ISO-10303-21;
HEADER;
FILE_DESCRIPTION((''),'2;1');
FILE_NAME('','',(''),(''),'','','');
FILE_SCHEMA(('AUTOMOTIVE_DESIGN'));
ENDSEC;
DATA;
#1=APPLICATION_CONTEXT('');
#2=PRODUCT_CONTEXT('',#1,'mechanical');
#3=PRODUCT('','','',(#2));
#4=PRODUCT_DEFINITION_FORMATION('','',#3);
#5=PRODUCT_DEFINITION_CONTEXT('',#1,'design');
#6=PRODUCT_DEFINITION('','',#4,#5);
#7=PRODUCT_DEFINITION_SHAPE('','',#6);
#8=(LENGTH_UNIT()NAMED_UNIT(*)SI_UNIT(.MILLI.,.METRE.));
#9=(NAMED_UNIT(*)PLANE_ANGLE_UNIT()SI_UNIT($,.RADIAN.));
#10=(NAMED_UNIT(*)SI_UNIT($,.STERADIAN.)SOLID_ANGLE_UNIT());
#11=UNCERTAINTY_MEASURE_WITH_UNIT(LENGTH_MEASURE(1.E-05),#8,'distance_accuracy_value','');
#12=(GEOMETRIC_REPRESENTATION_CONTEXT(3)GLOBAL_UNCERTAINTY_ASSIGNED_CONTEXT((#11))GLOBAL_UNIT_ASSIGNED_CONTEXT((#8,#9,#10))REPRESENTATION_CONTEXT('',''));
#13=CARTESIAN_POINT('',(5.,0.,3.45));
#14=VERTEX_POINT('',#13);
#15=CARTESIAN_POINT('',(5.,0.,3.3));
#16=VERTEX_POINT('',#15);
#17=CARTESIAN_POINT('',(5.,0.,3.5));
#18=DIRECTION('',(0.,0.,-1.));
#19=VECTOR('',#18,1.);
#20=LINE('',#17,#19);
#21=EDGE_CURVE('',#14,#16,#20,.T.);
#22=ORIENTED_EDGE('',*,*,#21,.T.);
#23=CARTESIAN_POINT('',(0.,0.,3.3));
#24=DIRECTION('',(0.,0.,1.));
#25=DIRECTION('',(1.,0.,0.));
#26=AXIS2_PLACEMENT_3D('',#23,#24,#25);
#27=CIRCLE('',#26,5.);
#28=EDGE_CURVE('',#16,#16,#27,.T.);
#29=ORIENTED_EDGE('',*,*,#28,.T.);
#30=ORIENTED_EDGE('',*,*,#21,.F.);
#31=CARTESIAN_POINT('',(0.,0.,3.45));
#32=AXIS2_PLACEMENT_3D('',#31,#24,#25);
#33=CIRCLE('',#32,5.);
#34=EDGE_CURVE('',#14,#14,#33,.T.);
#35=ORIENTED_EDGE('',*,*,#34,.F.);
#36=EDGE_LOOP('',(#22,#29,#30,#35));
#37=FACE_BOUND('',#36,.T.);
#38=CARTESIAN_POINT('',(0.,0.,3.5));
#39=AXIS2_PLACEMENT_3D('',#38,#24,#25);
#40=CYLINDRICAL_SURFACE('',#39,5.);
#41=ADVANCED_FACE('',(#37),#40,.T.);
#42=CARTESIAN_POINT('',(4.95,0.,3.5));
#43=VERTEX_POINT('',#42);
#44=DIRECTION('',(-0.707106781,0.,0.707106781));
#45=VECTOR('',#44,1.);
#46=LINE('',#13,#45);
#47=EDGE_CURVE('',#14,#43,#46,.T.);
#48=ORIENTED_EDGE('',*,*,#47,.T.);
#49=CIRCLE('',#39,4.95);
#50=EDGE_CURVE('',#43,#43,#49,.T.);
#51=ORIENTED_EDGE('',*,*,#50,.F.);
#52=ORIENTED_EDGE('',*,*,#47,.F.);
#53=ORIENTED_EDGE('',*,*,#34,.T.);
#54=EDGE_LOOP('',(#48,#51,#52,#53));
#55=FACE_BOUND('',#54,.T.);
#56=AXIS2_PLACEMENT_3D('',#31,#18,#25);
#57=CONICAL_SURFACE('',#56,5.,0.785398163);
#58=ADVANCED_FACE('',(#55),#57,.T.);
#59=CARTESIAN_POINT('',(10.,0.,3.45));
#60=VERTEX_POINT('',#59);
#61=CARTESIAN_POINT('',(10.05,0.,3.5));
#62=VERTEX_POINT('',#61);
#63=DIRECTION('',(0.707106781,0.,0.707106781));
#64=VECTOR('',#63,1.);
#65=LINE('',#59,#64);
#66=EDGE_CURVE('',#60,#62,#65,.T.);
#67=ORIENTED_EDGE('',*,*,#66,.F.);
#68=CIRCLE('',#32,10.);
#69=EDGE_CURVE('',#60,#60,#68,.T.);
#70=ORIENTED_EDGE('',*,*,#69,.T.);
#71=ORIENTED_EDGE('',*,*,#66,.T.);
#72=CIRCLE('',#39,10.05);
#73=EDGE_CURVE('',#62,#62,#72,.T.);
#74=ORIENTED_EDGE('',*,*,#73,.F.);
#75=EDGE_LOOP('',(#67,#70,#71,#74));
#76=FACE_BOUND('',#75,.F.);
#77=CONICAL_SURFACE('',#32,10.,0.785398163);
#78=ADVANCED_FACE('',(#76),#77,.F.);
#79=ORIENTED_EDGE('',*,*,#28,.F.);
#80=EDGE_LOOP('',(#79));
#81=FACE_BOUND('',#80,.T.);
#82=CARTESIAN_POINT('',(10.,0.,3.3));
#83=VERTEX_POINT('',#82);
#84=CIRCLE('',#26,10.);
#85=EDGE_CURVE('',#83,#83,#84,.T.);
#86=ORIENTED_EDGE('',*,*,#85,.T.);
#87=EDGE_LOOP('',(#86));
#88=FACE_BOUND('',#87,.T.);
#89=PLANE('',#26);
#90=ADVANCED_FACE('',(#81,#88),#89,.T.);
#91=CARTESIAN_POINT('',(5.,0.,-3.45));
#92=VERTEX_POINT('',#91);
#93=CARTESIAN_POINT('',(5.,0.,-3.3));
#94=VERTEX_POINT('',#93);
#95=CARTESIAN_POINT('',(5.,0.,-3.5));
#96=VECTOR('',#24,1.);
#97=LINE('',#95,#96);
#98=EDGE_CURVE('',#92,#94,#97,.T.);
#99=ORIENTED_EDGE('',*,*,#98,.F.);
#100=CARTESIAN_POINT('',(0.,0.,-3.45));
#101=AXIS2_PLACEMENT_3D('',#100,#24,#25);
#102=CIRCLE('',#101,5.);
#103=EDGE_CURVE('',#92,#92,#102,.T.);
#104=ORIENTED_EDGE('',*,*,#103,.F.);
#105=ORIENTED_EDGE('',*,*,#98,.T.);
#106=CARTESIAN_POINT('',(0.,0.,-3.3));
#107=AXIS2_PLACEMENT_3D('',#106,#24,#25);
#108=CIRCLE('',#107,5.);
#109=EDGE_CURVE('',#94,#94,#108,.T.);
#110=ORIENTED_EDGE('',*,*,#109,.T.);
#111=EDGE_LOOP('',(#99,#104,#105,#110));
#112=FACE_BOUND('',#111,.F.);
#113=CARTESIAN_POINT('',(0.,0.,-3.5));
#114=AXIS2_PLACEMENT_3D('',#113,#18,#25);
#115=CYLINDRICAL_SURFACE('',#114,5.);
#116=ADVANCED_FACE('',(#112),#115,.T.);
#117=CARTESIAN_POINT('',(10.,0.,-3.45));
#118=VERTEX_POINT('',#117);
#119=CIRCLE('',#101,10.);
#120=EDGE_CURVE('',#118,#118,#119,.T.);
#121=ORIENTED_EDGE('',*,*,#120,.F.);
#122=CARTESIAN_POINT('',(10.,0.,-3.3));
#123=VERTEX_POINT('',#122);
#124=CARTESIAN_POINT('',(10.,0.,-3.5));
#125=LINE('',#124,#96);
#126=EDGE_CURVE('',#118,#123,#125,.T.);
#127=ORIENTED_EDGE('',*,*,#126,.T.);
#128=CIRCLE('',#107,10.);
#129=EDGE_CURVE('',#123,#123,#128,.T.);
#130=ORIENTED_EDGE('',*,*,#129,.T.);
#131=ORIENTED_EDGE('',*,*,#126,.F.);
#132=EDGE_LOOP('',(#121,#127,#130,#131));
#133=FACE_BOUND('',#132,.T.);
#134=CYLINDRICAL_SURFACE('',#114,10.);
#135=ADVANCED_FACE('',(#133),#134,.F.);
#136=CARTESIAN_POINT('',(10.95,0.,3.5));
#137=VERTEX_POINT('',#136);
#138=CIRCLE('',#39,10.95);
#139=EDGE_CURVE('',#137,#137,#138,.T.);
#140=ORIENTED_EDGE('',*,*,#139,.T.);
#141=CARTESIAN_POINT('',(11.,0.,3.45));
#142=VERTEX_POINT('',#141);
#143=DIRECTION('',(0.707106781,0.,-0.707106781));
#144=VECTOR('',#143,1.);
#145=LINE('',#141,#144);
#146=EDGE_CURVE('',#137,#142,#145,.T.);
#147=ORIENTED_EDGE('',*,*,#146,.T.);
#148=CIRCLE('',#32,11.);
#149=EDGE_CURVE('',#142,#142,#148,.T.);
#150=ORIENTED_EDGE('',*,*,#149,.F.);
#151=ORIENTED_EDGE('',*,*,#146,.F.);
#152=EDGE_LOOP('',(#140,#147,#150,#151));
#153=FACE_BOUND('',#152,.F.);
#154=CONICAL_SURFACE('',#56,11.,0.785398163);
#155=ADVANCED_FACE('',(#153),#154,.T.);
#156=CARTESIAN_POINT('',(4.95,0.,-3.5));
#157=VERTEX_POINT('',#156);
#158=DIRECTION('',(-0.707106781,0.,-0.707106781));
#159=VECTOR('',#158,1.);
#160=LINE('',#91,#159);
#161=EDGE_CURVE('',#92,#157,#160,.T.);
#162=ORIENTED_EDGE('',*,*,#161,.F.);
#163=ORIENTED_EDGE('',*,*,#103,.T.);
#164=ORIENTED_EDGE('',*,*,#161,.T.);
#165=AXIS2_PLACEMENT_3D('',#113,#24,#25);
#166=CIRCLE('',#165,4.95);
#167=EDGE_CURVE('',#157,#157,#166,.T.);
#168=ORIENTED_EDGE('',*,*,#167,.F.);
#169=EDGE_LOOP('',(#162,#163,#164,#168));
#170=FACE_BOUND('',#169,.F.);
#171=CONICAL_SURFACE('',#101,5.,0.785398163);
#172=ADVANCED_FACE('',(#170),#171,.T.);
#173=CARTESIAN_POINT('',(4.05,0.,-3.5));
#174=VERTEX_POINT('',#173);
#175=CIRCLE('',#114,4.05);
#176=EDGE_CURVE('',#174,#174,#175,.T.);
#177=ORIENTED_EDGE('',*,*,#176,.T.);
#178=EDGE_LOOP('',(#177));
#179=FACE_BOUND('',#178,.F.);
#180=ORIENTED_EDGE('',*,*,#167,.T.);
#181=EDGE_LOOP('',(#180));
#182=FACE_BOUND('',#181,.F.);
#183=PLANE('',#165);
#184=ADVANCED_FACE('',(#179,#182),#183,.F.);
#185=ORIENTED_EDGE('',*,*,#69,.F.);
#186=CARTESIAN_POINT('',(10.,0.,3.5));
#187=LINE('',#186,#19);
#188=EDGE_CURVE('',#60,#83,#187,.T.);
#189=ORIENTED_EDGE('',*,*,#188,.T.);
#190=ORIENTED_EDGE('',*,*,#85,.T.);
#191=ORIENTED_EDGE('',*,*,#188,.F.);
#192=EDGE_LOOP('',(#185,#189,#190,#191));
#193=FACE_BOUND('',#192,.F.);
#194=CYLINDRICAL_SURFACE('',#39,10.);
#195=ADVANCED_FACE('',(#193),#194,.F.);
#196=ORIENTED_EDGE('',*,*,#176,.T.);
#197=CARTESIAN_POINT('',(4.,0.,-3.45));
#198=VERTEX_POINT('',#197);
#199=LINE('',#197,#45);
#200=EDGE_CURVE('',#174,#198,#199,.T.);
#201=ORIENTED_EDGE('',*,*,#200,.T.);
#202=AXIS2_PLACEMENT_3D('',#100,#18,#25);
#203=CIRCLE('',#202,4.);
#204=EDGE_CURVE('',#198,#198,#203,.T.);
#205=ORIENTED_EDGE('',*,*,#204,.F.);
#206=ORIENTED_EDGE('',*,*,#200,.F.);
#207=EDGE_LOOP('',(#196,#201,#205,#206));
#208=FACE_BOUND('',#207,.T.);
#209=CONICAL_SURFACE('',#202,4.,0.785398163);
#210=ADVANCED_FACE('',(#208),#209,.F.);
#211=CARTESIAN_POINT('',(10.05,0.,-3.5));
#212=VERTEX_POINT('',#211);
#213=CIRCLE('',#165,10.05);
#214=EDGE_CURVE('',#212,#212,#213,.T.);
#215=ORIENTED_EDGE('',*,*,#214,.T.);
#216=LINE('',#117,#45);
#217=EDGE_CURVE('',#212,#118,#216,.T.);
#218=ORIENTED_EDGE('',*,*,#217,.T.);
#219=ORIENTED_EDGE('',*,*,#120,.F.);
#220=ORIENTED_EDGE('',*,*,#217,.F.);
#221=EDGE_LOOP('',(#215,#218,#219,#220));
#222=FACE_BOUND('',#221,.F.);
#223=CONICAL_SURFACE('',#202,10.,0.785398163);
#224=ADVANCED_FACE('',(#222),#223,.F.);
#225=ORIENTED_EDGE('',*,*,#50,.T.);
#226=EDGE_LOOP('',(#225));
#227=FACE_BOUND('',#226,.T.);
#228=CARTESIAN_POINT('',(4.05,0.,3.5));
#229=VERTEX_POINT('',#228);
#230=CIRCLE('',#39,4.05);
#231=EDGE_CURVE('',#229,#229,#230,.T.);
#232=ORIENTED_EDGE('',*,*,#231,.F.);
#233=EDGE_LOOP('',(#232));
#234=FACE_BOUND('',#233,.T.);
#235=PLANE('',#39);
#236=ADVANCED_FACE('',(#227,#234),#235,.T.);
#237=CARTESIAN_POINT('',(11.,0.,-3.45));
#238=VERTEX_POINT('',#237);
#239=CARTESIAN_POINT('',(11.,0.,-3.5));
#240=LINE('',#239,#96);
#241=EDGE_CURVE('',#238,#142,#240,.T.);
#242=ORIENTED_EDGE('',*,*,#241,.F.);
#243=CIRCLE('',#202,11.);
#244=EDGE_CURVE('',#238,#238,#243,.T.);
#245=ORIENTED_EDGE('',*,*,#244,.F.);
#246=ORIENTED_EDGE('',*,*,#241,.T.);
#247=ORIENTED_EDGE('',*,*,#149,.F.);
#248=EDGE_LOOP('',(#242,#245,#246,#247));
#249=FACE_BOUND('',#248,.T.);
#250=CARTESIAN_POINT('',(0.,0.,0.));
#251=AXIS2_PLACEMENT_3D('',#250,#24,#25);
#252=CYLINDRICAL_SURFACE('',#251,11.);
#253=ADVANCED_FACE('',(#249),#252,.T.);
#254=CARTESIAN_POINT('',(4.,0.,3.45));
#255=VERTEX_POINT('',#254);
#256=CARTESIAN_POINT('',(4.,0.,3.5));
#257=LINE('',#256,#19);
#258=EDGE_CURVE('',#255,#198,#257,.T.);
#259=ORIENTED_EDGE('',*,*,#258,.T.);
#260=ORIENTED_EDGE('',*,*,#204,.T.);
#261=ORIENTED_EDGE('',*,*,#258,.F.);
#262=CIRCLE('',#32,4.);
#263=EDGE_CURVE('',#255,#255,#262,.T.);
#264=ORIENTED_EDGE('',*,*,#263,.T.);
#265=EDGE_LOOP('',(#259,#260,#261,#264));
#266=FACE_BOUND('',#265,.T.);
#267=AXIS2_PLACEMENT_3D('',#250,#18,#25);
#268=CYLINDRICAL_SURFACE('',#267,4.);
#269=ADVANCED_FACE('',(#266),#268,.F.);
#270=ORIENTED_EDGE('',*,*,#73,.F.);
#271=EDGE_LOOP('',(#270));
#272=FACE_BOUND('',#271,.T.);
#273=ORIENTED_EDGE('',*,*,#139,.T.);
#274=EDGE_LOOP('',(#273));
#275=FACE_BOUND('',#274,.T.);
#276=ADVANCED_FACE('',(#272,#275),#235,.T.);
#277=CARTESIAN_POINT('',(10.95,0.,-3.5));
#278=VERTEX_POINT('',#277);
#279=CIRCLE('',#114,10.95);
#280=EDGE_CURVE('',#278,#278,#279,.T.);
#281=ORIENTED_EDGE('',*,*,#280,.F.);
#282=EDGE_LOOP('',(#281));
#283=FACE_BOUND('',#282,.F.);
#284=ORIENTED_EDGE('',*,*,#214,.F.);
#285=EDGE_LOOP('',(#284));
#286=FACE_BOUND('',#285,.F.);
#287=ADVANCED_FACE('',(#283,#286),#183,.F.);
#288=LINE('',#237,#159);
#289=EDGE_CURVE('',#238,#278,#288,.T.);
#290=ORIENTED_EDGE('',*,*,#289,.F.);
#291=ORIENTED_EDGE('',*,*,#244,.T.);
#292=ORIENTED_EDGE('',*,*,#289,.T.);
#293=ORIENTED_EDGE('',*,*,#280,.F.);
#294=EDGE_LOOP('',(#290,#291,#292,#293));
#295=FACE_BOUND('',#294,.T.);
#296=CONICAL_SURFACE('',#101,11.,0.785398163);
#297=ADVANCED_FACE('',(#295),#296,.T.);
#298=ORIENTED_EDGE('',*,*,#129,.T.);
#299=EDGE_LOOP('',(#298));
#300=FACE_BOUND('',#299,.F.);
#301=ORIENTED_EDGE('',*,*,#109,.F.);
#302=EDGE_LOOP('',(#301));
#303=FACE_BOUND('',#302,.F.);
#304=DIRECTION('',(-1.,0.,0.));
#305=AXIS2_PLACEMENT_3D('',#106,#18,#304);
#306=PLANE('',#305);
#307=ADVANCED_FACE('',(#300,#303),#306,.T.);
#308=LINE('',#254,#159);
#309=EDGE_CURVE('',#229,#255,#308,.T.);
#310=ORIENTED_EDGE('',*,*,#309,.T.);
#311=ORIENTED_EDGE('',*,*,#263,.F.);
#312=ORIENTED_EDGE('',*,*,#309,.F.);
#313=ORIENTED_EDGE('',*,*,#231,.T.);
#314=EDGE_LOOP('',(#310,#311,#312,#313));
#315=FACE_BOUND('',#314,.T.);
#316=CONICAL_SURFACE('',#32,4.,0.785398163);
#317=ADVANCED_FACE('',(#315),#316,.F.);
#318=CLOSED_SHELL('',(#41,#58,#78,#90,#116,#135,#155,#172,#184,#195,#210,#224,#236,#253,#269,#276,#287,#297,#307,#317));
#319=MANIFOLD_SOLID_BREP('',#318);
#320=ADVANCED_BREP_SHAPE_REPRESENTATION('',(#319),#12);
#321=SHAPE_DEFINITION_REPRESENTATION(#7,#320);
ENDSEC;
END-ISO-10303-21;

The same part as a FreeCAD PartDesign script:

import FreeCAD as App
import Part
import Sketcher
from FreeCAD import Vector
Q = App.Units.Quantity


def edges_at(feature, points):
    """Names of the edges that pass closest to the given points."""
    edges = feature.Shape.Edges
    near = lambda p: min(range(len(edges)), key=lambda i: edges[i].distToShape(Part.Vertex(*p))[0])
    return sorted({f"Edge{near(p) + 1}" for p in points})

doc = App.newDocument("Part")
params = doc.addObject("Spreadsheet::Sheet", "Params")
for row, (alias, value) in enumerate([
    ("sketch1_diameter", "22 mm"),
    ("sketch1_diameter2", "8 mm"),
    ("pad1_length", "7 mm"),
    ("sketch2_diameter", "20 mm"),
    ("sketch2_diameter2", "10 mm"),
    ("pocket1_length", "0.2 mm"),
    ("chamfer_size", "0.05 mm"),
    ("chamfer2_size", "0.05 mm"),
    ("chamfer3_size", "0.05 mm"),
    ("chamfer4_size", "0.05 mm"),
    ("chamfer5_size", "0.05 mm"),
    ("chamfer6_size", "0.05 mm"),
    ("chamfer7_size", "0.05 mm"),
    ("chamfer8_size", "0.05 mm"),
], start=1):
    params.set(f"A{row}", alias)
    params.set(f"B{row}", "=" + value)
    params.setAlias(f"B{row}", alias)

body = doc.addObject("PartDesign::Body", "Body")

sketch1 = doc.addObject("Sketcher::SketchObject", "Sketch")
body.addObject(sketch1)
sketch1.AttachmentSupport = (doc.XY_Plane, [""])
sketch1.MapMode = "FlatFace"
sketch1.addGeometry([
    Part.Circle(Vector(0, 0, 0), Vector(0, 0, 1), 11),
    Part.Circle(Vector(0, 0, 0), Vector(0, 0, 1), 4),
], False)
sketch1.addConstraint([
    Sketcher.Constraint("Coincident", 0, 3, -1, 1),
    Sketcher.Constraint("Coincident", 1, 3, -1, 1),
    Sketcher.Constraint("Diameter", 0, Q("22 mm")),
    Sketcher.Constraint("Diameter", 1, Q("8 mm")),
])
sketch1.setExpression("Constraints[2]", "Params.sketch1_diameter")
sketch1.setExpression("Constraints[3]", "Params.sketch1_diameter2")
pad1 = doc.addObject("PartDesign::Pad", "Pad")
body.addObject(pad1)
pad1.Profile = sketch1
pad1.setExpression("Length", "Params.pad1_length")
pad1.Midplane = True

sketch2 = doc.addObject("Sketcher::SketchObject", "Sketch001")
body.addObject(sketch2)
sketch2.AttachmentSupport = (doc.XY_Plane, [""])
sketch2.MapMode = "FlatFace"
sketch2.AttachmentOffset = App.Placement(Vector(0, 0, 3.5), App.Rotation())
sketch2.addGeometry([
    Part.Circle(Vector(0, 0, 0), Vector(0, 0, 1), 10),
    Part.Circle(Vector(0, 0, 0), Vector(0, 0, 1), 5),
], False)
sketch2.addConstraint([
    Sketcher.Constraint("Coincident", 0, 3, -1, 1),
    Sketcher.Constraint("Coincident", 1, 3, -1, 1),
    Sketcher.Constraint("Diameter", 0, Q("20 mm")),
    Sketcher.Constraint("Diameter", 1, Q("10 mm")),
])
sketch2.setExpression("Constraints[2]", "Params.sketch2_diameter")
sketch2.setExpression("Constraints[3]", "Params.sketch2_diameter2")
pocket1 = doc.addObject("PartDesign::Pocket", "Pocket")
body.addObject(pocket1)
pocket1.Profile = sketch2
pocket1.setExpression("Length", "Params.pocket1_length")
doc.recompute()

mirrored = doc.addObject("PartDesign::Mirrored", "Mirrored")
body.addObject(mirrored)
mirrored.Originals = [pocket1]
mirrored.MirrorPlane = (doc.XY_Plane, [""])
body.Tip = mirrored
doc.recompute()

chamfer = doc.addObject("PartDesign::Chamfer", "Chamfer")
body.addObject(chamfer)
chamfer.Base = (mirrored, edges_at(mirrored, [(-10, 0, 3.5)]))
chamfer.setExpression("Size", "Params.chamfer_size")
doc.recompute()

chamfer2 = doc.addObject("PartDesign::Chamfer", "Chamfer001")
body.addObject(chamfer2)
chamfer2.Base = (chamfer, edges_at(chamfer, [(-5, 0, 3.5)]))
chamfer2.setExpression("Size", "Params.chamfer2_size")
doc.recompute()

chamfer3 = doc.addObject("PartDesign::Chamfer", "Chamfer002")
body.addObject(chamfer3)
chamfer3.Base = (chamfer2, edges_at(chamfer2, [(-4, 0, 3.5)]))
chamfer3.setExpression("Size", "Params.chamfer3_size")
doc.recompute()

chamfer4 = doc.addObject("PartDesign::Chamfer", "Chamfer003")
body.addObject(chamfer4)
chamfer4.Base = (chamfer3, edges_at(chamfer3, [(-11, 0, 3.5)]))
chamfer4.setExpression("Size", "Params.chamfer4_size")
doc.recompute()

chamfer5 = doc.addObject("PartDesign::Chamfer", "Chamfer004")
body.addObject(chamfer5)
chamfer5.Base = (chamfer4, edges_at(chamfer4, [(-11, 0, -3.5)]))
chamfer5.setExpression("Size", "Params.chamfer5_size")
doc.recompute()

chamfer6 = doc.addObject("PartDesign::Chamfer", "Chamfer005")
body.addObject(chamfer6)
chamfer6.Base = (chamfer5, edges_at(chamfer5, [(-10, 0, -3.5)]))
chamfer6.setExpression("Size", "Params.chamfer6_size")
doc.recompute()

chamfer7 = doc.addObject("PartDesign::Chamfer", "Chamfer006")
body.addObject(chamfer7)
chamfer7.Base = (chamfer6, edges_at(chamfer6, [(-5, 0, -3.5)]))
chamfer7.setExpression("Size", "Params.chamfer7_size")
doc.recompute()

chamfer8 = doc.addObject("PartDesign::Chamfer", "Chamfer007")
body.addObject(chamfer8)
chamfer8.Base = (chamfer7, edges_at(chamfer7, [(-4, 0, -3.5)]))
chamfer8.setExpression("Size", "Params.chamfer8_size")

doc.recompute()
